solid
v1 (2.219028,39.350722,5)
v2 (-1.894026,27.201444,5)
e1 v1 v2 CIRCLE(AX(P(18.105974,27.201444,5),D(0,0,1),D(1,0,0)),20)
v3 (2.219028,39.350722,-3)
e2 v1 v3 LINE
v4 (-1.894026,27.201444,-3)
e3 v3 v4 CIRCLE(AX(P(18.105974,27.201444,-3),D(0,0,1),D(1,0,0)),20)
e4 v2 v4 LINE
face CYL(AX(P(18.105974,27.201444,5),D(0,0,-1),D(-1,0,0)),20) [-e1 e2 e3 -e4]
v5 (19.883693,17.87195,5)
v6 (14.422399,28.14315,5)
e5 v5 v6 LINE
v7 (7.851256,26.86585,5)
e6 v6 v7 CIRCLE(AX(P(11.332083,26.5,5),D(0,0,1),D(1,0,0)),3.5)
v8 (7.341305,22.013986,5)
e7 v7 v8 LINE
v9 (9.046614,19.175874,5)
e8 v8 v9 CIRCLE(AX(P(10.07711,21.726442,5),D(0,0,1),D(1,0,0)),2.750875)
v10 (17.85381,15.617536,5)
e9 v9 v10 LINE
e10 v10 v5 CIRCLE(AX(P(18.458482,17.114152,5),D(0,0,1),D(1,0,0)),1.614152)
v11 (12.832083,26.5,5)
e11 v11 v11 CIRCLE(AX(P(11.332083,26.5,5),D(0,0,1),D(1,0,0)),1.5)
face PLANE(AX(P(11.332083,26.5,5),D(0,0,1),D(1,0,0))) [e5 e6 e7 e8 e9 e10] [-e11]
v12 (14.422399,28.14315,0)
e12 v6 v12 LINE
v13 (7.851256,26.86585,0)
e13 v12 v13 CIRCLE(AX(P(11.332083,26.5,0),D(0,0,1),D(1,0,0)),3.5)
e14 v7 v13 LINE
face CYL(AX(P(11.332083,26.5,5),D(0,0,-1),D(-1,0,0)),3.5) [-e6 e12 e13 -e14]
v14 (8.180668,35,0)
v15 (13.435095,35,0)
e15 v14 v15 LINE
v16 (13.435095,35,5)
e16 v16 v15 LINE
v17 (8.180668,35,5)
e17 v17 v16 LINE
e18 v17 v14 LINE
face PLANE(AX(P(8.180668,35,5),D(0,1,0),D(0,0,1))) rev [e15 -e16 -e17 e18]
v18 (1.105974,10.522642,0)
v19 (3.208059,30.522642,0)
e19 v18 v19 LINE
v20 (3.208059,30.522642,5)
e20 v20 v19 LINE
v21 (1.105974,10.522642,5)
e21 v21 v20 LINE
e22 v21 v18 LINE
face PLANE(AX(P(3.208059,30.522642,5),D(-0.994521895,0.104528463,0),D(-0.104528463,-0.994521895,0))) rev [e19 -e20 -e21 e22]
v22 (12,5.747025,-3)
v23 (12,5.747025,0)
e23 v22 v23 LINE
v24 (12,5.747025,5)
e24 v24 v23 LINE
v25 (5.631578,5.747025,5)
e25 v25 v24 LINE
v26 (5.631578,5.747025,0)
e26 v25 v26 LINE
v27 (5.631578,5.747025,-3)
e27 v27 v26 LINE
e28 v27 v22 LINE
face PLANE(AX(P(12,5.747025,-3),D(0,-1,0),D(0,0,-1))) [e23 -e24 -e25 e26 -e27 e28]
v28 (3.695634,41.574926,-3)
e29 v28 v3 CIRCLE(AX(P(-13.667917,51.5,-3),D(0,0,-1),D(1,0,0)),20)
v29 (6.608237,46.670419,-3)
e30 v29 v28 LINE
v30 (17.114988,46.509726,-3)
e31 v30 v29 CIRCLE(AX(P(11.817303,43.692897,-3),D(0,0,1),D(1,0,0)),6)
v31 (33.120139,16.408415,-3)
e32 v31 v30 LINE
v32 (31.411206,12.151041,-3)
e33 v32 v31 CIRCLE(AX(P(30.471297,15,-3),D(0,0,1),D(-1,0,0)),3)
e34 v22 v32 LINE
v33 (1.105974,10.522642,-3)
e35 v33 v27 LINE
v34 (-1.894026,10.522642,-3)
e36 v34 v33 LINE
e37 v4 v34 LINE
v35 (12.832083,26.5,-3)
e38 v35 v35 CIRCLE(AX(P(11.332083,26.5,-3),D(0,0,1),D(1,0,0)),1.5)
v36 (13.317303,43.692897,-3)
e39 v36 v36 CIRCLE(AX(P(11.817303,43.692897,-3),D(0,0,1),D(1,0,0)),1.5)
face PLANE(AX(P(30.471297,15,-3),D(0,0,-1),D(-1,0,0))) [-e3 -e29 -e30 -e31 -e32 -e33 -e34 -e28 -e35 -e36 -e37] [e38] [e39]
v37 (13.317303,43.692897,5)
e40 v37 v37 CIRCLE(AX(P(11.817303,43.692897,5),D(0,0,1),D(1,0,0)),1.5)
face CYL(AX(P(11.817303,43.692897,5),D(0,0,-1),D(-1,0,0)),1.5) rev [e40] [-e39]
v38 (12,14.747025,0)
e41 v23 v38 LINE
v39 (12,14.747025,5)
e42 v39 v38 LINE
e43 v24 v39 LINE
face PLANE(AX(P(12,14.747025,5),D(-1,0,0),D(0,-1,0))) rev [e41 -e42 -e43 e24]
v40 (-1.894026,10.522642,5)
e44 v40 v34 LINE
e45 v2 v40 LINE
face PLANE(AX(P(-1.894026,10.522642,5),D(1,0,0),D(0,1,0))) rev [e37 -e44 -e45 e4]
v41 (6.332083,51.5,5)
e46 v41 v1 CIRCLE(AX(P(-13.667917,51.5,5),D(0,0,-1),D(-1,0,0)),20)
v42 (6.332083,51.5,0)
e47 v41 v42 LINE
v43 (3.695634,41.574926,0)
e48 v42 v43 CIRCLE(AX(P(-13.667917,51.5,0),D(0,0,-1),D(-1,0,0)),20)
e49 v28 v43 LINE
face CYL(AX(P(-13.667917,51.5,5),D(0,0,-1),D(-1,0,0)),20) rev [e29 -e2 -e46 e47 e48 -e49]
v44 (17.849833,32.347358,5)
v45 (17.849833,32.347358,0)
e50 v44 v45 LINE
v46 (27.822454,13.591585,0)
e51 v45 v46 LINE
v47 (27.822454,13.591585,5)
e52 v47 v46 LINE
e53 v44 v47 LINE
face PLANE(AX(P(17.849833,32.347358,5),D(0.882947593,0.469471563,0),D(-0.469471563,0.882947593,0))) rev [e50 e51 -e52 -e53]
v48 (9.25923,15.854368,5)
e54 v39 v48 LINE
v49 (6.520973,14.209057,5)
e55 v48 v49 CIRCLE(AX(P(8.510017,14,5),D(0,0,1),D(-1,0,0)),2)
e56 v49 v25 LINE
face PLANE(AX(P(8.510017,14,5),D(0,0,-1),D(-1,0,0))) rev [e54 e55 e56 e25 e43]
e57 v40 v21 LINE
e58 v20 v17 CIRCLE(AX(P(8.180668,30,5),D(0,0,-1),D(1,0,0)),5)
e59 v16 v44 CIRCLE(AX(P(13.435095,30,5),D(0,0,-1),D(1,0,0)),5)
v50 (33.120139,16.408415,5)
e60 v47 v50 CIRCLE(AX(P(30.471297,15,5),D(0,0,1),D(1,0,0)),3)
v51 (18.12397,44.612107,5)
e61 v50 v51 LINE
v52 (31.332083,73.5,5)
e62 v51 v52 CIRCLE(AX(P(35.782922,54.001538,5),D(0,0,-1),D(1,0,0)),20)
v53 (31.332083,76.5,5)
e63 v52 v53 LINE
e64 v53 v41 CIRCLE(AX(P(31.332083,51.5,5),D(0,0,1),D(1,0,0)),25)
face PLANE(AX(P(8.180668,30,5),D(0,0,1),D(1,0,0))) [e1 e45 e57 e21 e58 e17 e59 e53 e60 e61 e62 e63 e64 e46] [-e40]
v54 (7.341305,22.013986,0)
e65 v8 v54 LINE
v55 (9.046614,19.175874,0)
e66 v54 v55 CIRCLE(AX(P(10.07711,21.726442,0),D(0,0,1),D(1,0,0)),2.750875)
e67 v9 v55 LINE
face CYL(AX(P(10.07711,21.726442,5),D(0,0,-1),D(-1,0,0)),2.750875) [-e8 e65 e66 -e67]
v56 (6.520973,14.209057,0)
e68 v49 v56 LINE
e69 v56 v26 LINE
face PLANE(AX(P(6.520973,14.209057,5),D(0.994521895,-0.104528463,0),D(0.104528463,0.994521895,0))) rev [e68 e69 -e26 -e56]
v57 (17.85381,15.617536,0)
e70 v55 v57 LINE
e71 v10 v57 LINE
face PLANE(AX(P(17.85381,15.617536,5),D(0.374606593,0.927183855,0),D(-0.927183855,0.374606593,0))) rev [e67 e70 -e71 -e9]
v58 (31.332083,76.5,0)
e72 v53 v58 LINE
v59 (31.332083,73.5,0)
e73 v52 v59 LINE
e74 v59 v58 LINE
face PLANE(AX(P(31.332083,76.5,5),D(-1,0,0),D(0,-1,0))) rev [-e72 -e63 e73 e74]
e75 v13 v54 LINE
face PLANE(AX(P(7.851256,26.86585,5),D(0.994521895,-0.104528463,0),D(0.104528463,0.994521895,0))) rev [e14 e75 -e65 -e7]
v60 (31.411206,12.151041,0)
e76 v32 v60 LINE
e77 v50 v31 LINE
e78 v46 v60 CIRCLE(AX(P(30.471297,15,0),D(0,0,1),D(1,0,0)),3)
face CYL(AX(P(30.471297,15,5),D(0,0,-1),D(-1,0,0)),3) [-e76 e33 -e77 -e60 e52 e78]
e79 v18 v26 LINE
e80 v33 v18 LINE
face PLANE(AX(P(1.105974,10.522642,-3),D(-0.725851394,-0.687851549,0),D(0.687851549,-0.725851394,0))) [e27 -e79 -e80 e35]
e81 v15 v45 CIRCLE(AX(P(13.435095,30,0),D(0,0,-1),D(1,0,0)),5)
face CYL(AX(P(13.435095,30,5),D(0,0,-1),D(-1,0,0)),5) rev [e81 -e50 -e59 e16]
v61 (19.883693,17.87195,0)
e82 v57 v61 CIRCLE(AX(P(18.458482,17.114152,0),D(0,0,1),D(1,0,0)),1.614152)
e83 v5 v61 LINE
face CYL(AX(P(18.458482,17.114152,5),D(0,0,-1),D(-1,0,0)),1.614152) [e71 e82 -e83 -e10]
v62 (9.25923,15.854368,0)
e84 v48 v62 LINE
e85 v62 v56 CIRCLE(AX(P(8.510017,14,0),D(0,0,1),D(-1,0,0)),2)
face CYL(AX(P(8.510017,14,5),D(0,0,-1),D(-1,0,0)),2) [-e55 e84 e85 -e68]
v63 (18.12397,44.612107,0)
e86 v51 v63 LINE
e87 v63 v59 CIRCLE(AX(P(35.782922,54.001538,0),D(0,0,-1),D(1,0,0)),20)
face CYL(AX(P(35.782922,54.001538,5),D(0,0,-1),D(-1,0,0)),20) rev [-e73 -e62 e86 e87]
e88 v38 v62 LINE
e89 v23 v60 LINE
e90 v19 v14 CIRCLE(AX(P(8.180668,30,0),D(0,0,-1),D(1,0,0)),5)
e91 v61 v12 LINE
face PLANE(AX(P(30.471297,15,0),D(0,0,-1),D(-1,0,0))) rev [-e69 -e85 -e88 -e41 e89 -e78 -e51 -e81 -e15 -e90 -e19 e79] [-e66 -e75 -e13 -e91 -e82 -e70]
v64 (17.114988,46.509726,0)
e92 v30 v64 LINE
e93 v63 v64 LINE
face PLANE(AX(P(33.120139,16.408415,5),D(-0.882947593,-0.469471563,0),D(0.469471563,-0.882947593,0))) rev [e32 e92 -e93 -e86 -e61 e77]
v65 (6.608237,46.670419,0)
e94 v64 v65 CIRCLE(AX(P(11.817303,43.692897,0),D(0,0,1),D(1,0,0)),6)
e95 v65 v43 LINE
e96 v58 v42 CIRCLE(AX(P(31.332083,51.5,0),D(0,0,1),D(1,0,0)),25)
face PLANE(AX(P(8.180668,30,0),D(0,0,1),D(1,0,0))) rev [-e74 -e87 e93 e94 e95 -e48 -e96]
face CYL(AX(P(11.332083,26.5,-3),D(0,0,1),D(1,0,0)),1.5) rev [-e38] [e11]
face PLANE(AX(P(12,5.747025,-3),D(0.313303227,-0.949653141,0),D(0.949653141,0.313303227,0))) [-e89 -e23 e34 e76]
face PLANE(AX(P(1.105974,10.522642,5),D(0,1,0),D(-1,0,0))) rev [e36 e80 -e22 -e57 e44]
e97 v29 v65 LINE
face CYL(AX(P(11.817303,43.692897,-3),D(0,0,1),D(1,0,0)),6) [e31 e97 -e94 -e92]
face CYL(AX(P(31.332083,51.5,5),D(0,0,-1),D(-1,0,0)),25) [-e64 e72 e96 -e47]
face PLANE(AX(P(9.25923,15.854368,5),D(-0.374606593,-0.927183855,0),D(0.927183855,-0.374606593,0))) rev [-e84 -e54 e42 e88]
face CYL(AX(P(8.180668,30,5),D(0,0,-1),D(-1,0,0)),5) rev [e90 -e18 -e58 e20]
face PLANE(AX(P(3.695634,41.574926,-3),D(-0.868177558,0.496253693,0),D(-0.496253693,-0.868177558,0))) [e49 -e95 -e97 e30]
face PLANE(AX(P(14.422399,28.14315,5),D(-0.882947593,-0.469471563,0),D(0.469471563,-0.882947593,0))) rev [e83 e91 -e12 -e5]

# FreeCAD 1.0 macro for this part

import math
import FreeCAD as App
import Part
import Sketcher
from FreeCAD import Vector
Q = App.Units.Quantity

doc = App.newDocument("Part")
params = doc.addObject("Spreadsheet::Sheet", "Params")
for row, (alias, value) in enumerate([
    ("sketch1_diameter", "3 mm"),
    ("sketch1_radius", "25 mm"),
    ("sketch1_radius2", "20 mm"),
    ("sketch1_radius3", "5 mm"),
    ("sketch1_radius4", "3 mm"),
    ("pad1_length", "5 mm"),
    ("sketch2_diameter", "3 mm"),
    ("sketch2_radius", "3.5 mm"),
    ("pad2_length", "5 mm"),
    ("sketch3_radius", "2 mm"),
    ("sketch3_height", "9 mm"),
    ("pad3_length", "5 mm"),
    ("sketch4_diameter", "3 mm"),
    ("sketch4_radius", "3 mm"),
    ("sketch4_radius2", "6 mm"),
    ("sketch4_radius3", "20 mm"),
    ("sketch4_width", "3 mm"),
    ("pad4_length", "3 mm"),
], start=1):
    params.set(f"A{row}", alias)
    params.set(f"B{row}", "=" + value)
    params.setAlias(f"B{row}", alias)

body = doc.addObject("PartDesign::Body", "Body")

sketch1 = body.newObject("Sketcher::SketchObject", "Sketch")
sketch1.AttachmentSupport = (doc.getObject("XY_Plane"), [""])
sketch1.MapMode = "FlatFace"
sketch1.addGeometry(Part.LineSegment(Vector(31.332083, 73.5, 0), Vector(31.332083, 76.5, 0)), False)
sketch1.addGeometry(Part.ArcOfCircle(Part.Circle(Vector(31.332083, 51.5, 0), Vector(0, 0, 1), 25), math.radians(90), math.radians(180)), False)
sketch1.addGeometry(Part.ArcOfCircle(Part.Circle(Vector(-13.667917, 51.5, 0), Vector(0, 0, 1), 20), math.radians(-37.406351), math.radians(0)), False)
sketch1.addGeometry(Part.ArcOfCircle(Part.Circle(Vector(18.105974, 27.201444, 0), Vector(0, 0, 1), 20), math.radians(142.593649), math.radians(180)), False)
sketch1.addGeometry(Part.LineSegment(Vector(-1.894026, 27.201444, 0), Vector(-1.894026, 10.522642, 0)), False)
sketch1.addGeometry(Part.LineSegment(Vector(-1.894026, 10.522642, 0), Vector(1.105974, 10.522642, 0)), False)
sketch1.addGeometry(Part.LineSegment(Vector(1.105974, 10.522642, 0), Vector(3.208059, 30.522642, 0)), False)
sketch1.addGeometry(Part.ArcOfCircle(Part.Circle(Vector(8.180668, 30, 0), Vector(0, 0, 1), 5), math.radians(90), math.radians(174)), False)
sketch1.addGeometry(Part.LineSegment(Vector(8.180668, 35, 0), Vector(13.435095, 35, 0)), False)
sketch1.addGeometry(Part.ArcOfCircle(Part.Circle(Vector(13.435095, 30, 0), Vector(0, 0, 1), 5), math.radians(28), math.radians(90)), False)
sketch1.addGeometry(Part.LineSegment(Vector(17.849833, 32.347358, 0), Vector(27.822454, 13.591585, 0)), False)
sketch1.addGeometry(Part.ArcOfCircle(Part.Circle(Vector(30.471297, 15, 0), Vector(0, 0, 1), 3), math.radians(-152), math.radians(28)), False)
sketch1.addGeometry(Part.LineSegment(Vector(33.120139, 16.408415, 0), Vector(18.12397, 44.612107, 0)), False)
sketch1.addGeometry(Part.ArcOfCircle(Part.Circle(Vector(35.782922, 54.001538, 0), Vector(0, 0, 1), 20), math.radians(102.85838), math.radians(208)), False)
sketch1.addGeometry(Part.Circle(Vector(11.817303, 43.692897, 0), Vector(0, 0, 1), 1.5), False)
sketch1.addConstraint(Sketcher.Constraint("Coincident", 0, 2, 1, 1))
sketch1.addConstraint(Sketcher.Constraint("Tangent", 1, 2, 2, 2))
sketch1.addConstraint(Sketcher.Constraint("Tangent", 2, 1, 3, 1))
sketch1.addConstraint(Sketcher.Constraint("Tangent", 3, 2, 4, 1))
sketch1.addConstraint(Sketcher.Constraint("Coincident", 4, 2, 5, 1))
sketch1.addConstraint(Sketcher.Constraint("Coincident", 5, 2, 6, 1))
sketch1.addConstraint(Sketcher.Constraint("Tangent", 6, 2, 7, 2))
sketch1.addConstraint(Sketcher.Constraint("Tangent", 7, 1, 8, 1))
sketch1.addConstraint(Sketcher.Constraint("Tangent", 8, 2, 9, 2))
sketch1.addConstraint(Sketcher.Constraint("Tangent", 9, 1, 10, 1))
sketch1.addConstraint(Sketcher.Constraint("Tangent", 10, 2, 11, 1))
sketch1.addConstraint(Sketcher.Constraint("Tangent", 11, 2, 12, 1))
sketch1.addConstraint(Sketcher.Constraint("Tangent", 12, 2, 13, 2))
sketch1.addConstraint(Sketcher.Constraint("Coincident", 13, 1, 0, 1))
sketch1.addConstraint(Sketcher.Constraint("Vertical", 0))
sketch1.addConstraint(Sketcher.Constraint("Vertical", 4))
sketch1.addConstraint(Sketcher.Constraint("Horizontal", 5))
sketch1.addConstraint(Sketcher.Constraint("Horizontal", 8))
sketch1.addConstraint(Sketcher.Constraint("Equal", 2, 3))
sketch1.addConstraint(Sketcher.Constraint("Equal", 7, 9))
sketch1.addConstraint(Sketcher.Constraint("Equal", 3, 13))
sketch1.addConstraint(Sketcher.Constraint("Parallel", 10, 12))
sketch1.addConstraint(Sketcher.Constraint("Horizontal", 1, 3, 2, 3))
sketch1.addConstraint(Sketcher.Constraint("Vertical", 1, 3, 0, 2))
sketch1.addConstraint(Sketcher.Constraint("Equal", 5, 0))
sketch1.addConstraint(Sketcher.Constraint("Diameter", 14, 3.0))
sketch1.addConstraint(Sketcher.Constraint("Radius", 1, 25.0))
sketch1.addConstraint(Sketcher.Constraint("Radius", 2, 20.0))
sketch1.addConstraint(Sketcher.Constraint("Radius", 7, 5.0))
sketch1.addConstraint(Sketcher.Constraint("Radius", 11, 3.0))
sketch1.addConstraint(Sketcher.Constraint("DistanceX", 5, 1, 5, 2, 3.0))
sketch1.addConstraint(Sketcher.Constraint("Angle", 6, Q("84 deg")))
sketch1.addConstraint(Sketcher.Constraint("Angle", 10, Q("-62 deg")))
sketch1.addConstraint(Sketcher.Constraint("DistanceY", -1, 1, 7, 3, 30.0))
sketch1.addConstraint(Sketcher.Constraint("DistanceY", -1, 1, 11, 3, 15.0))
sketch1.addConstraint(Sketcher.Constraint("DistanceY", -1, 1, 1, 3, 51.5))
sketch1.addConstraint(Sketcher.Constraint("DistanceY", 4, 2, 4, 1, 16.678802))
sketch1.addConstraint(Sketcher.Constraint("DistanceY", 3, 2, 6, 2, 3.321198))
sketch1.addConstraint(Sketcher.Constraint("DistanceX", 7, 1, 12, 2, 9.943302))
sketch1.addConstraint(Sketcher.Constraint("DistanceX", -1, 1, 7, 3, 8.180668))
sketch1.addConstraint(Sketcher.Constraint("DistanceX", 14, 3, 3, 3, 6.288672))
sketch1.addConstraint(Sketcher.Constraint("DistanceY", 14, 3, 13, 3, 10.308641))
sketch1.setExpression("Constraints[25]", "Params.sketch1_diameter")
sketch1.setExpression("Constraints[26]", "Params.sketch1_radius")
sketch1.setExpression("Constraints[27]", "Params.sketch1_radius2")
sketch1.setExpression("Constraints[28]", "Params.sketch1_radius3")
sketch1.setExpression("Constraints[29]", "Params.sketch1_radius4")
pad1 = body.newObject("PartDesign::Pad", "Pad")
pad1.Profile = sketch1
pad1.setExpression("Length", "Params.pad1_length")
body2 = doc.addObject("PartDesign::Body", "Body001")

sketch2 = body2.newObject("Sketcher::SketchObject", "Sketch001")
sketch2.AttachmentSupport = (doc.getObject("XY_Plane001"), [""])
sketch2.MapMode = "FlatFace"
sketch2.addGeometry(Part.LineSegment(Vector(7.851256, 26.86585, 0), Vector(7.341305, 22.013986, 0)), False)
sketch2.addGeometry(Part.ArcOfCircle(Part.Circle(Vector(10.07711, 21.726442, 0), Vector(0, 0, 1), 2.750875), math.radians(174), math.radians(248)), False)
sketch2.addGeometry(Part.LineSegment(Vector(9.046614, 19.175874, 0), Vector(17.85381, 15.617536, 0)), False)
sketch2.addGeometry(Part.ArcOfCircle(Part.Circle(Vector(18.458482, 17.114152, 0), Vector(0, 0, 1), 1.614152), math.radians(-112), math.radians(28)), False)
sketch2.addGeometry(Part.LineSegment(Vector(19.883693, 17.87195, 0), Vector(14.422399, 28.14315, 0)), False)
sketch2.addGeometry(Part.ArcOfCircle(Part.Circle(Vector(11.332083, 26.5, 0), Vector(0, 0, 1), 3.5), math.radians(28), math.radians(174)), False)
sketch2.addGeometry(Part.Circle(Vector(11.332083, 26.5, 0), Vector(0, 0, 1), 1.5), False)
sketch2.addConstraint(Sketcher.Constraint("Tangent", 0, 2, 1, 1))
sketch2.addConstraint(Sketcher.Constraint("Tangent", 1, 2, 2, 1))
sketch2.addConstraint(Sketcher.Constraint("Tangent", 2, 2, 3, 1))
sketch2.addConstraint(Sketcher.Constraint("Tangent", 3, 2, 4, 1))
sketch2.addConstraint(Sketcher.Constraint("Tangent", 4, 2, 5, 1))
sketch2.addConstraint(Sketcher.Constraint("Tangent", 5, 2, 0, 1))
sketch2.addConstraint(Sketcher.Constraint("Coincident", 6, 3, 5, 3))
sketch2.addConstraint(Sketcher.Constraint("Diameter", 6, 3.0))
sketch2.addConstraint(Sketcher.Constraint("Radius", 5, 3.5))
sketch2.addConstraint(Sketcher.Constraint("Angle", 0, Q("-96 deg")))
sketch2.addConstraint(Sketcher.Constraint("Angle", 2, Q("-22 deg")))
sketch2.addConstraint(Sketcher.Constraint("Angle", 4, Q("118 deg")))
sketch2.addConstraint(Sketcher.Constraint("DistanceY", -1, 1, 5, 3, 26.5))
sketch2.addConstraint(Sketcher.Constraint("Radius", 3, 1.614152))
sketch2.addConstraint(Sketcher.Constraint("Radius", 1, 2.750875))
sketch2.addConstraint(Sketcher.Constraint("DistanceX", -1, 1, 4, 2, 14.422399))
sketch2.addConstraint(Sketcher.Constraint("DistanceX", 5, 3, 3, 3, 7.126399))
sketch2.setExpression("Constraints[7]", "Params.sketch2_diameter")
sketch2.setExpression("Constraints[8]", "Params.sketch2_radius")
pad2 = body2.newObject("PartDesign::Pad", "Pad001")
pad2.Profile = sketch2
pad2.setExpression("Length", "Params.pad2_length")
body3 = doc.addObject("PartDesign::Body", "Body002")

sketch3 = body3.newObject("Sketcher::SketchObject", "Sketch002")
sketch3.AttachmentSupport = (doc.getObject("XY_Plane002"), [""])
sketch3.MapMode = "FlatFace"
sketch3.addGeometry(Part.LineSegment(Vector(6.520973, 14.209057, 0), Vector(5.631578, 5.747025, 0)), False)
sketch3.addGeometry(Part.LineSegment(Vector(5.631578, 5.747025, 0), Vector(12, 5.747025, 0)), False)
sketch3.addGeometry(Part.LineSegment(Vector(12, 5.747025, 0), Vector(12, 14.747025, 0)), False)
sketch3.addGeometry(Part.LineSegment(Vector(12, 14.747025, 0), Vector(9.25923, 15.854368, 0)), False)
sketch3.addGeometry(Part.ArcOfCircle(Part.Circle(Vector(8.510017, 14, 0), Vector(0, 0, 1), 2), math.radians(68), math.radians(174)), False)
sketch3.addConstraint(Sketcher.Constraint("Coincident", 0, 2, 1, 1))
sketch3.addConstraint(Sketcher.Constraint("Coincident", 1, 2, 2, 1))
sketch3.addConstraint(Sketcher.Constraint("Coincident", 2, 2, 3, 1))
sketch3.addConstraint(Sketcher.Constraint("Tangent", 3, 2, 4, 1))
sketch3.addConstraint(Sketcher.Constraint("Tangent", 4, 2, 0, 1))
sketch3.addConstraint(Sketcher.Constraint("Horizontal", 1))
sketch3.addConstraint(Sketcher.Constraint("Vertical", 2))
sketch3.addConstraint(Sketcher.Constraint("Radius", 4, 2.0))
sketch3.addConstraint(Sketcher.Constraint("DistanceY", 2, 1, 2, 2, 9.0))
sketch3.addConstraint(Sketcher.Constraint("Angle", 0, Q("-96 deg")))
sketch3.addConstraint(Sketcher.Constraint("Angle", 3, Q("158 deg")))
sketch3.addConstraint(Sketcher.Constraint("DistanceY", -1, 1, 4, 3, 14.0))
sketch3.addConstraint(Sketcher.Constraint("DistanceX", -1, 1, 1, 2, 12.0))
sketch3.addConstraint(Sketcher.Constraint("DistanceX", 1, 1, 1, 2, 6.368422))
sketch3.setExpression("Constraints[7]", "Params.sketch3_radius")
sketch3.setExpression("Constraints[8]", "Params.sketch3_height")
pad3 = body3.newObject("PartDesign::Pad", "Pad002")
pad3.Profile = sketch3
pad3.setExpression("Length", "Params.pad3_length")
body.AllowCompound = True
doc.recompute()

boolean = body.newObject("PartDesign::Boolean", "Boolean")
boolean.Type = "Fuse"
boolean.addObjects([body2])
doc.recompute()

boolean2 = body.newObject("PartDesign::Boolean", "Boolean001")
boolean2.Type = "Fuse"
boolean2.addObjects([body3])

sketch4 = body.newObject("Sketcher::SketchObject", "Sketch003")
sketch4.AttachmentSupport = (doc.getObject("XY_Plane"), [""])
sketch4.MapMode = "FlatFace"
sketch4.AttachmentOffset = App.Placement(Vector(0, 0, -3), App.Rotation())
sketch4.addGeometry(Part.LineSegment(Vector(12, 5.747025, 0), Vector(31.411206, 12.151041, 0)), False)
sketch4.addGeometry(Part.ArcOfCircle(Part.Circle(Vector(30.471297, 15, 0), Vector(0, 0, 1), 3), math.radians(-71.741589), math.radians(28)), False)
sketch4.addGeometry(Part.LineSegment(Vector(33.120139, 16.408415, 0), Vector(17.114988, 46.509726, 0)), False)
sketch4.addGeometry(Part.ArcOfCircle(Part.Circle(Vector(11.817303, 43.692897, 0), Vector(0, 0, 1), 6), math.radians(28), math.radians(150.247546)), False)
sketch4.addGeometry(Part.LineSegment(Vector(6.608237, 46.670419, 0), Vector(3.695634, 41.574926, 0)), False)
sketch4.addGeometry(Part.ArcOfCircle(Part.Circle(Vector(-13.667918, 51.5, 0), Vector(0, 0, 1), 20), math.radians(-37.406351), math.radians(-29.752454)), False)
sketch4.addGeometry(Part.ArcOfCircle(Part.Circle(Vector(18.105974, 27.201444, 0), Vector(0, 0, 1), 20), math.radians(142.593649), math.radians(180)), False)
sketch4.addGeometry(Part.LineSegment(Vector(-1.894026, 27.201444, 0), Vector(-1.894026, 10.522642, 0)), False)
sketch4.addGeometry(Part.LineSegment(Vector(-1.894026, 10.522642, 0), Vector(1.105974, 10.522642, 0)), False)
sketch4.addGeometry(Part.LineSegment(Vector(1.105974, 10.522642, 0), Vector(5.631578, 5.747025, 0)), False)
sketch4.addGeometry(Part.LineSegment(Vector(5.631578, 5.747025, 0), Vector(12, 5.747025, 0)), False)
sketch4.addGeometry(Part.Circle(Vector(11.332083, 26.5, 0), Vector(0, 0, 1), 1.5), False)
sketch4.addGeometry(Part.Circle(Vector(11.817303, 43.692897, 0), Vector(0, 0, 1), 1.5), False)
sketch4.addConstraint(Sketcher.Constraint("Tangent", 0, 2, 1, 1))
sketch4.addConstraint(Sketcher.Constraint("Tangent", 1, 2, 2, 1))
sketch4.addConstraint(Sketcher.Constraint("Tangent", 2, 2, 3, 1))
sketch4.addConstraint(Sketcher.Constraint("Tangent", 3, 2, 4, 1))
sketch4.addConstraint(Sketcher.Constraint("Tangent", 4, 2, 5, 2))
sketch4.addConstraint(Sketcher.Constraint("Tangent", 5, 1, 6, 1))
sketch4.addConstraint(Sketcher.Constraint("Tangent", 6, 2, 7, 1))
sketch4.addConstraint(Sketcher.Constraint("Coincident", 7, 2, 8, 1))
sketch4.addConstraint(Sketcher.Constraint("Coincident", 8, 2, 9, 1))
sketch4.addConstraint(Sketcher.Constraint("Coincident", 9, 2, 10, 1))
sketch4.addConstraint(Sketcher.Constraint("Coincident", 10, 2, 0, 1))
sketch4.addConstraint(Sketcher.Constraint("Vertical", 7))
sketch4.addConstraint(Sketcher.Constraint("Horizontal", 8))
sketch4.addConstraint(Sketcher.Constraint("Horizontal", 10))
sketch4.addConstraint(Sketcher.Constraint("Coincident", 12, 3, 3, 3))
sketch4.addConstraint(Sketcher.Constraint("Equal", 5, 6))
sketch4.addConstraint(Sketcher.Constraint("Equal", 11, 12))
sketch4.addConstraint(Sketcher.Constraint("Diameter", 11, 3.0))
sketch4.addConstraint(Sketcher.Constraint("Radius", 1, 3.0))
sketch4.addConstraint(Sketcher.Constraint("Radius", 3, 6.0))
sketch4.addConstraint(Sketcher.Constraint("Radius", 5, 20.0))
sketch4.addConstraint(Sketcher.Constraint("DistanceX", 8, 1, 8, 2, 3.0))
sketch4.addConstraint(Sketcher.Constraint("Angle", 2, Q("118 deg")))
sketch4.addConstraint(Sketcher.Constraint("DistanceY", -1, 1, 1, 3, 15.0))
sketch4.addConstraint(Sketcher.Constraint("DistanceX", -1, 1, 10, 2, 12.0))
sketch4.addConstraint(Sketcher.Constraint("DistanceX", 5, 3, 11, 3, 25.0))
sketch4.addConstraint(Sketcher.Constraint("DistanceY", 11, 3, 5, 3, 25.0))
sketch4.addConstraint(Sketcher.Constraint("DistanceY", -1, 1, 5, 3, 51.5))
sketch4.addConstraint(Sketcher.Constraint("DistanceY", 7, 2, 7, 1, 16.678802))
sketch4.addConstraint(Sketcher.Constraint("DistanceX", 10, 1, 10, 2, 6.368422))
sketch4.addConstraint(Sketcher.Constraint("DistanceY", 4, 2, 2, 2, 4.9348))
sketch4.addConstraint(Sketcher.Constraint("Distance", 0, 20.440312))
sketch4.addConstraint(Sketcher.Constraint("DistanceY", -1, 1, 0, 2, 12.151041))
sketch4.addConstraint(Sketcher.Constraint("DistanceX", -1, 1, 2, 2, 17.114988))
sketch4.addConstraint(Sketcher.Constraint("DistanceX", -1, 1, 5, 1, 2.219028))
sketch4.setExpression("Constraints[17]", "Params.sketch4_diameter")
sketch4.setExpression("Constraints[18]", "Params.sketch4_radius")
sketch4.setExpression("Constraints[19]", "Params.sketch4_radius2")
sketch4.setExpression("Constraints[20]", "Params.sketch4_radius3")
sketch4.setExpression("Constraints[21]", "Params.sketch4_width")
pad4 = body.newObject("PartDesign::Pad", "Pad003")
pad4.Profile = sketch4
pad4.setExpression("Length", "Params.pad4_length")

doc.recompute()
